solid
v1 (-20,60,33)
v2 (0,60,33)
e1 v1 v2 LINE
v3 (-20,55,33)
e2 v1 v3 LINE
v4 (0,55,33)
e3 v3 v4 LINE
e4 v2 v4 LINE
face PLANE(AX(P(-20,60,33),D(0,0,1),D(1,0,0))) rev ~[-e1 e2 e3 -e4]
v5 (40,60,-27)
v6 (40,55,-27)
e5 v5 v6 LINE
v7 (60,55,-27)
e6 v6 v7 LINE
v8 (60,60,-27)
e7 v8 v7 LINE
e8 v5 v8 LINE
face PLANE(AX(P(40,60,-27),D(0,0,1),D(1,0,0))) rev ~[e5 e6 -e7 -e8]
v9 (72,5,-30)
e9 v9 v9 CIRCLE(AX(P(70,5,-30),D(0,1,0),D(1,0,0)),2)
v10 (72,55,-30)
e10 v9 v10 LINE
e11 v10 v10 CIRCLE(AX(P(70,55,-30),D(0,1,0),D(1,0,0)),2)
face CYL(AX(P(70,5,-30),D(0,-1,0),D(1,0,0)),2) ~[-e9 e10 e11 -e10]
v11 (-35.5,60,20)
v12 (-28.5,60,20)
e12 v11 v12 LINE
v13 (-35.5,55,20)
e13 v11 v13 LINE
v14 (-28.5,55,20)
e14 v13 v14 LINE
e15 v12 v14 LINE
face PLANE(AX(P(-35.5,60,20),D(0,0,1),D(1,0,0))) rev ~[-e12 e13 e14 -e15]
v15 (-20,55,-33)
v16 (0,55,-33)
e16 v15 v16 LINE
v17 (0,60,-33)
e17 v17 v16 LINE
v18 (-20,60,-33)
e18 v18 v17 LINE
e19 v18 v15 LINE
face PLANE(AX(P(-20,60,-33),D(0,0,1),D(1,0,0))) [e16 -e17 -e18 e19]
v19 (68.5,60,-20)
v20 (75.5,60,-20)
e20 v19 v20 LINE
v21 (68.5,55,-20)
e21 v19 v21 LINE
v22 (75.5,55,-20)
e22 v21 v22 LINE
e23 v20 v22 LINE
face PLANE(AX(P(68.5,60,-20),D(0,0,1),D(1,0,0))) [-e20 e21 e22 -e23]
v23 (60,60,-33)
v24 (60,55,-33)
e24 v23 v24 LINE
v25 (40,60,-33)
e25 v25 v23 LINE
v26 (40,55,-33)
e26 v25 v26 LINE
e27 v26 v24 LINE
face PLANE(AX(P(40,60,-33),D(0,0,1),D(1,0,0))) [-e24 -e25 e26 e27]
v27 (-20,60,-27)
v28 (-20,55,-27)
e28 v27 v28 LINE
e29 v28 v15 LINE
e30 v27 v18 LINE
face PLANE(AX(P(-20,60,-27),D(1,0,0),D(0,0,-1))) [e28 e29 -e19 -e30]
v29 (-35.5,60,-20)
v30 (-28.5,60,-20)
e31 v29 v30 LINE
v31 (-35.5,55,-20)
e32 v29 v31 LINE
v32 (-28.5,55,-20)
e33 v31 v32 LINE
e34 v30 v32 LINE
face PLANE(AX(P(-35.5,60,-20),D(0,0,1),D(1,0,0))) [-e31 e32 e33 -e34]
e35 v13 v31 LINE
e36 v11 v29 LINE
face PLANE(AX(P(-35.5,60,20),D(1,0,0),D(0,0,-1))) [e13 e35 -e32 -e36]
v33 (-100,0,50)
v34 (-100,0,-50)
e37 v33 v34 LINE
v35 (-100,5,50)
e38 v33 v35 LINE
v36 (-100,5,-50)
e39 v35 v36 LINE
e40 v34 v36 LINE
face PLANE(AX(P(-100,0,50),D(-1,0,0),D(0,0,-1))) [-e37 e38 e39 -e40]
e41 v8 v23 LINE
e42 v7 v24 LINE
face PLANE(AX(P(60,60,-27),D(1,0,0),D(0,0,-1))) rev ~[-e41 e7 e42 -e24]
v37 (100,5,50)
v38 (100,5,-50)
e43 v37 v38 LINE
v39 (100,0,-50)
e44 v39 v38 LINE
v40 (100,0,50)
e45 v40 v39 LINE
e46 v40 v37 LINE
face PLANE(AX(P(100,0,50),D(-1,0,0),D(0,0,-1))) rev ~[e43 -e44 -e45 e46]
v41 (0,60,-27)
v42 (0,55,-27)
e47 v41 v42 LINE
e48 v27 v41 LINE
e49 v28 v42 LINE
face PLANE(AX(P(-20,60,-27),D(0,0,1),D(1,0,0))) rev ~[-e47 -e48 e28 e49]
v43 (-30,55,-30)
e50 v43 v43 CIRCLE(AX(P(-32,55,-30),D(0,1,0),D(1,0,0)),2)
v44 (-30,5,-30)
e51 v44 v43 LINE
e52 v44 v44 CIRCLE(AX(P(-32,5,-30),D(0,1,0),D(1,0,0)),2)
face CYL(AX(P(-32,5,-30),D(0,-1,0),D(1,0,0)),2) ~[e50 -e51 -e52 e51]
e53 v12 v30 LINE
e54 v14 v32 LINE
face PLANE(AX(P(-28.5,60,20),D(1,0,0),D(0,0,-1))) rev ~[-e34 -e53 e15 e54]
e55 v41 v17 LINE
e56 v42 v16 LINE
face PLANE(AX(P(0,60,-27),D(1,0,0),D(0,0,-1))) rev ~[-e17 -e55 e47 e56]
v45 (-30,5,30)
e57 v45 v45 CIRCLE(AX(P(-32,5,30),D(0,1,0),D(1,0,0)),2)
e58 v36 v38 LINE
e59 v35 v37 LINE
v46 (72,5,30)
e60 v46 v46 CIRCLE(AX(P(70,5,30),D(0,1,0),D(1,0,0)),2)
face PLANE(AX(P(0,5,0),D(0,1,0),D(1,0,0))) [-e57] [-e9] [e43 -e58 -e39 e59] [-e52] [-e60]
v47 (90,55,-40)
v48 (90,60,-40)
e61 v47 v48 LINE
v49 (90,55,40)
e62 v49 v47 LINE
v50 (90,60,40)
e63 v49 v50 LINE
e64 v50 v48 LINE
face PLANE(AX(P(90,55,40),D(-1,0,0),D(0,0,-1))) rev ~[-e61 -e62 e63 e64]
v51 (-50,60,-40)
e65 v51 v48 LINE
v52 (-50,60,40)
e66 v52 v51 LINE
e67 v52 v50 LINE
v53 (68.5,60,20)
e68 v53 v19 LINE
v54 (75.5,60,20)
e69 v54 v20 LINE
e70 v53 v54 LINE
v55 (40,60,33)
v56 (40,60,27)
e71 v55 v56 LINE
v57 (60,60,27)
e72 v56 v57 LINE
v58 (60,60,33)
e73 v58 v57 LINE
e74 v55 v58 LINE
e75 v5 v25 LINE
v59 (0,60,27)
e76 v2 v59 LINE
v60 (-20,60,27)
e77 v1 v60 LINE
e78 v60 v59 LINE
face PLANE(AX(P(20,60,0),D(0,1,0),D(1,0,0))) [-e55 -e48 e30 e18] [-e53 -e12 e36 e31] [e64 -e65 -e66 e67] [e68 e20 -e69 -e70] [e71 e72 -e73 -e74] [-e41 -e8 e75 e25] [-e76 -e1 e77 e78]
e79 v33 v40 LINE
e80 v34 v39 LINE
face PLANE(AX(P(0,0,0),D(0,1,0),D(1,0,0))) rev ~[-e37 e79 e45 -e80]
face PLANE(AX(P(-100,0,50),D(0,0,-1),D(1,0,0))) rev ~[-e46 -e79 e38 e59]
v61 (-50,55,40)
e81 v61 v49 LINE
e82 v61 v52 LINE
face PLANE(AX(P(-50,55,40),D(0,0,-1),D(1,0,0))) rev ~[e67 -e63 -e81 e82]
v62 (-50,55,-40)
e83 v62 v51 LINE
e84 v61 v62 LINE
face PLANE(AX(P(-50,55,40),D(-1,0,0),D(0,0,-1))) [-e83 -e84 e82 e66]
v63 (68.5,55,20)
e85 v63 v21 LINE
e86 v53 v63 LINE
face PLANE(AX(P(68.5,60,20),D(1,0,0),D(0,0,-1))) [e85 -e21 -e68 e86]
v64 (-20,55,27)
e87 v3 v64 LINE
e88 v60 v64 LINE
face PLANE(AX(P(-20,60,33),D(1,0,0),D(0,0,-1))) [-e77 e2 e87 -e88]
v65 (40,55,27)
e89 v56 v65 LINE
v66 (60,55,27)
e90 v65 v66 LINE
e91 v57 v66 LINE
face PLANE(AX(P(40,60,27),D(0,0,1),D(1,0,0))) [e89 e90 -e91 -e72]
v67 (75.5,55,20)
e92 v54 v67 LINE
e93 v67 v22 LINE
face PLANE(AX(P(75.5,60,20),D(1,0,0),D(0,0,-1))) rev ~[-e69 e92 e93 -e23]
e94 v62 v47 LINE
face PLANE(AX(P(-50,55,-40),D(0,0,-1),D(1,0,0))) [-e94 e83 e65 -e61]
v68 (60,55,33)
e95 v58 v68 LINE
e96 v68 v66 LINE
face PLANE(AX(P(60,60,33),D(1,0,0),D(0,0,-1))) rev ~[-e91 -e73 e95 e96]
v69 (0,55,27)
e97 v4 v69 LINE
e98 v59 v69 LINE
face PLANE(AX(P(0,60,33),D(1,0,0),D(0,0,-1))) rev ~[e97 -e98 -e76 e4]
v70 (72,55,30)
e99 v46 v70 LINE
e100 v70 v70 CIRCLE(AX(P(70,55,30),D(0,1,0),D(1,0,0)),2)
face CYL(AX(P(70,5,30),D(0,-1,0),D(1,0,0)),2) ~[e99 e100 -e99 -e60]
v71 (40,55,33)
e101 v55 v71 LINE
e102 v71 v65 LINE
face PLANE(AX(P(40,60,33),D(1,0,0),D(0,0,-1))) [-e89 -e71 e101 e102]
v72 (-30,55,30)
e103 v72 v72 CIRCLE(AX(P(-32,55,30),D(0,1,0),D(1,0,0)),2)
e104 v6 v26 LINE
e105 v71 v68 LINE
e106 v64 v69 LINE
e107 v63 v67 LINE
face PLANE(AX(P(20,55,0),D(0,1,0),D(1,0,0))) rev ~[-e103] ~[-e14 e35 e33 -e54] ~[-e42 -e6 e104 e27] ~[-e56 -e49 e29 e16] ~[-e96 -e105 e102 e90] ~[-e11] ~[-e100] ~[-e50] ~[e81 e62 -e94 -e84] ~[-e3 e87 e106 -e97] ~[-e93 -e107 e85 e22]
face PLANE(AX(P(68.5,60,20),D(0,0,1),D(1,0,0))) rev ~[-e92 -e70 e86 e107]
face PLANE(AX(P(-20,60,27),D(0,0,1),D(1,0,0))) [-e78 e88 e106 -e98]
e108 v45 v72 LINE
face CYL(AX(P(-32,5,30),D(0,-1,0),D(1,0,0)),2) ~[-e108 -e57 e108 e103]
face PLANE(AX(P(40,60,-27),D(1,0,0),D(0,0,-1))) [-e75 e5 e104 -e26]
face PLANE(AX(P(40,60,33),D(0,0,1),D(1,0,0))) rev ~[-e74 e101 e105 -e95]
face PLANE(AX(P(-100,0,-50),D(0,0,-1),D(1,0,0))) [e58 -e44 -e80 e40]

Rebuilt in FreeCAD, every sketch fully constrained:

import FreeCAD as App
import Part
import Sketcher
Q = App.Units.Quantity


def add_polygon(sketch, points):
    """Adds a closed chain of lines whose ends are joined by coincident constraints."""
    first, n = sketch.GeometryCount, len(points)
    for a, b in zip(points, points[1:] + points[:1]):
        sketch.addGeometry(Part.LineSegment(App.Vector(*a, 0), App.Vector(*b, 0)), False)
    for i in range(n):
        sketch.addConstraint(Sketcher.Constraint("Coincident", first + i, 2, first + (i + 1) % n, 1))

doc = App.newDocument("Part")
body = doc.addObject("PartDesign::Body", "Body")

# Sketch on XZ plane
sketch1 = body.newObject("Sketcher::SketchObject", "Sketch")
sketch1.AttachmentSupport = (doc.getObject("XZ_Plane"), [""])
sketch1.MapMode = "FlatFace"
add_polygon(sketch1, [(-100, -50), (-100, 50), (100, 50), (100, -50)])  # lines 0-3
sketch1.addConstraint([
    Sketcher.Constraint("Vertical", 0),
    Sketcher.Constraint("Horizontal", 1),
    Sketcher.Constraint("Vertical", 2),
    Sketcher.Constraint("Horizontal", 3),
    Sketcher.Constraint("Symmetric", 0, 2, 2, 2, -1, 1),
    Sketcher.Constraint("DistanceX", 1, 1, 1, 2, Q("200 mm")),
    Sketcher.Constraint("DistanceY", 0, 1, 0, 2, Q("100 mm")),
])
pad1 = body.newObject("PartDesign::Pad", "Pad")
pad1.Profile = sketch1
pad1.Length = 5
pad1.Reversed = True

# Sketch on XZ plane
sketch2 = body.newObject("Sketcher::SketchObject", "Sketch001")
sketch2.AttachmentSupport = (doc.getObject("XZ_Plane"), [""])
sketch2.MapMode = "FlatFace"
sketch2.AttachmentOffset = App.Placement(App.Vector(0, 0, -5), App.Rotation())
sketch2.addGeometry([
    Part.Circle(App.Vector(70, 30, 0), App.Vector(0, 0, 1), 2),
    Part.Circle(App.Vector(-32, 30, 0), App.Vector(0, 0, 1), 2),
    Part.Circle(App.Vector(70, -30, 0), App.Vector(0, 0, 1), 2),
    Part.Circle(App.Vector(-32, -30, 0), App.Vector(0, 0, 1), 2),
], False)
sketch2.addConstraint([
    Sketcher.Constraint("Equal", 0, 1),
    Sketcher.Constraint("Equal", 1, 2),
    Sketcher.Constraint("Equal", 2, 3),
    Sketcher.Constraint("Symmetric", 0, 3, 2, 3, -1),
    Sketcher.Constraint("Symmetric", 1, 3, 3, 3, -1),
    Sketcher.Constraint("Horizontal", 0, 3, 1, 3),
    Sketcher.Constraint("Diameter", 0, Q("4 mm")),
    Sketcher.Constraint("DistanceX", -1, 1, 0, 3, Q("70 mm")),
    Sketcher.Constraint("DistanceY", -1, 1, 0, 3, Q("30 mm")),
    Sketcher.Constraint("DistanceX", 1, 3, -1, 1, Q("32 mm")),
])
pad2 = body.newObject("PartDesign::Pad", "Pad001")
pad2.Profile = sketch2
pad2.Length = 50
pad2.Reversed = True

# Sketch on XZ plane
sketch3 = body.newObject("Sketcher::SketchObject", "Sketch002")
sketch3.AttachmentSupport = (doc.getObject("XZ_Plane"), [""])
sketch3.MapMode = "FlatFace"
sketch3.AttachmentOffset = App.Placement(App.Vector(0, 0, -55), App.Rotation())
add_polygon(sketch3, [(-50, -40), (-50, 40), (90, 40), (90, -40)])  # lines 0-3
sketch3.addConstraint([
    Sketcher.Constraint("Vertical", 0),
    Sketcher.Constraint("Horizontal", 1),
    Sketcher.Constraint("Vertical", 2),
    Sketcher.Constraint("Horizontal", 3),
    Sketcher.Constraint("DistanceX", 1, 1, 1, 2, Q("140 mm")),
    Sketcher.Constraint("DistanceY", 0, 1, 0, 2, Q("80 mm")),
    Sketcher.Constraint("DistanceX", 0, 2, -1, 1, Q("50 mm")),
    Sketcher.Constraint("DistanceY", -1, 1, 0, 2, Q("40 mm")),
])
pad3 = body.newObject("PartDesign::Pad", "Pad002")
pad3.Profile = sketch3
pad3.Length = 5
pad3.Reversed = True

# Sketch on XZ plane
sketch4 = body.newObject("Sketcher::SketchObject", "Sketch003")
sketch4.AttachmentSupport = (doc.getObject("XZ_Plane"), [""])
sketch4.MapMode = "FlatFace"
sketch4.AttachmentOffset = App.Placement(App.Vector(0, 0, -60), App.Rotation())
add_polygon(sketch4, [(-20, -33), (-20, -27), (0, -27), (0, -33)])  # lines 0-3
add_polygon(sketch4, [(-20, 27), (-20, 33), (0, 33), (0, 27)])  # lines 4-7
add_polygon(sketch4, [(40, 27), (40, 33), (60, 33), (60, 27)])  # lines 8-11
add_polygon(sketch4, [(40, -33), (40, -27), (60, -27), (60, -33)])  # lines 12-15
sketch4.addConstraint([
    Sketcher.Constraint("Vertical", 0),
    Sketcher.Constraint("Horizontal", 1),
    Sketcher.Constraint("Vertical", 2),
    Sketcher.Constraint("Horizontal", 3),
    Sketcher.Constraint("Vertical", 4),
    Sketcher.Constraint("Horizontal", 5),
    Sketcher.Constraint("Vertical", 6),
    Sketcher.Constraint("Horizontal", 7),
    Sketcher.Constraint("Vertical", 8),
    Sketcher.Constraint("Horizontal", 9),
    Sketcher.Constraint("Vertical", 10),
    Sketcher.Constraint("Horizontal", 11),
    Sketcher.Constraint("Vertical", 12),
    Sketcher.Constraint("Horizontal", 13),
    Sketcher.Constraint("Vertical", 14),
    Sketcher.Constraint("Horizontal", 15),
    Sketcher.Constraint("Symmetric", 2, 2, 5, 2, -1, 1),
    Sketcher.Constraint("Symmetric", 1, 2, 6, 2, -1),
    Sketcher.Constraint("Symmetric", 11, 2, 12, 2, -1),
    Sketcher.Constraint("Symmetric", 9, 2, 14, 2, -1),
    Sketcher.Constraint("Horizontal", 5, 2, 8, 2),
    Sketcher.Constraint("Horizontal", 7, 2, 10, 2),
    Sketcher.Constraint("Vertical", 3, 2, 4, 2),
    Sketcher.Constraint("Equal", 7, 9),
    Sketcher.Constraint("DistanceX", 1, 1, 1, 2, Q("20 mm")),
    Sketcher.Constraint("DistanceY", 0, 1, 0, 2, Q("6 mm")),
    Sketcher.Constraint("DistanceY", 0, 2, -1, 1, Q("27 mm")),
    Sketcher.Constraint("DistanceX", -1, 1, 8, 2, Q("40 mm")),
])
pocket1 = body.newObject("PartDesign::Pocket", "Pocket")
pocket1.Profile = sketch4
pocket1.Length = 5
pocket1.Reversed = True

# Sketch on XZ plane
sketch5 = body.newObject("Sketcher::SketchObject", "Sketch004")
sketch5.AttachmentSupport = (doc.getObject("XZ_Plane"), [""])
sketch5.MapMode = "FlatFace"
sketch5.AttachmentOffset = App.Placement(App.Vector(0, 0, -60), App.Rotation())
add_polygon(sketch5, [(-35.5, -20), (-35.5, 20), (-28.5, 20), (-28.5, -20)])  # lines 0-3
add_polygon(sketch5, [(68.5, -20), (68.5, 20), (75.5, 20), (75.5, -20)])  # lines 4-7
sketch5.addConstraint([
    Sketcher.Constraint("Vertical", 0),
    Sketcher.Constraint("Horizontal", 1),
    Sketcher.Constraint("Vertical", 2),
    Sketcher.Constraint("Horizontal", 3),
    Sketcher.Constraint("Vertical", 4),
    Sketcher.Constraint("Horizontal", 5),
    Sketcher.Constraint("Vertical", 6),
    Sketcher.Constraint("Horizontal", 7),
    Sketcher.Constraint("Horizontal", 1, 2, 4, 2),
    Sketcher.Constraint("Horizontal", 3, 2, 6, 2),
    Sketcher.Constraint("Equal", 3, 5),
    Sketcher.Constraint("DistanceX", 1, 1, 1, 2, Q("7 mm")),
    Sketcher.Constraint("DistanceY", 0, 1, 0, 2, Q("40 mm")),
    Sketcher.Constraint("DistanceY", -1, 1, 0, 2, Q("20 mm")),
    Sketcher.Constraint("DistanceX", 1, 2, 4, 2, Q("97 mm")),
    Sketcher.Constraint("DistanceX", 0, 2, -1, 1, Q("35.5 mm")),
])
pocket2 = body.newObject("PartDesign::Pocket", "Pocket001")
pocket2.Profile = sketch5
pocket2.Length = 5
pocket2.Reversed = True

doc.recompute()
